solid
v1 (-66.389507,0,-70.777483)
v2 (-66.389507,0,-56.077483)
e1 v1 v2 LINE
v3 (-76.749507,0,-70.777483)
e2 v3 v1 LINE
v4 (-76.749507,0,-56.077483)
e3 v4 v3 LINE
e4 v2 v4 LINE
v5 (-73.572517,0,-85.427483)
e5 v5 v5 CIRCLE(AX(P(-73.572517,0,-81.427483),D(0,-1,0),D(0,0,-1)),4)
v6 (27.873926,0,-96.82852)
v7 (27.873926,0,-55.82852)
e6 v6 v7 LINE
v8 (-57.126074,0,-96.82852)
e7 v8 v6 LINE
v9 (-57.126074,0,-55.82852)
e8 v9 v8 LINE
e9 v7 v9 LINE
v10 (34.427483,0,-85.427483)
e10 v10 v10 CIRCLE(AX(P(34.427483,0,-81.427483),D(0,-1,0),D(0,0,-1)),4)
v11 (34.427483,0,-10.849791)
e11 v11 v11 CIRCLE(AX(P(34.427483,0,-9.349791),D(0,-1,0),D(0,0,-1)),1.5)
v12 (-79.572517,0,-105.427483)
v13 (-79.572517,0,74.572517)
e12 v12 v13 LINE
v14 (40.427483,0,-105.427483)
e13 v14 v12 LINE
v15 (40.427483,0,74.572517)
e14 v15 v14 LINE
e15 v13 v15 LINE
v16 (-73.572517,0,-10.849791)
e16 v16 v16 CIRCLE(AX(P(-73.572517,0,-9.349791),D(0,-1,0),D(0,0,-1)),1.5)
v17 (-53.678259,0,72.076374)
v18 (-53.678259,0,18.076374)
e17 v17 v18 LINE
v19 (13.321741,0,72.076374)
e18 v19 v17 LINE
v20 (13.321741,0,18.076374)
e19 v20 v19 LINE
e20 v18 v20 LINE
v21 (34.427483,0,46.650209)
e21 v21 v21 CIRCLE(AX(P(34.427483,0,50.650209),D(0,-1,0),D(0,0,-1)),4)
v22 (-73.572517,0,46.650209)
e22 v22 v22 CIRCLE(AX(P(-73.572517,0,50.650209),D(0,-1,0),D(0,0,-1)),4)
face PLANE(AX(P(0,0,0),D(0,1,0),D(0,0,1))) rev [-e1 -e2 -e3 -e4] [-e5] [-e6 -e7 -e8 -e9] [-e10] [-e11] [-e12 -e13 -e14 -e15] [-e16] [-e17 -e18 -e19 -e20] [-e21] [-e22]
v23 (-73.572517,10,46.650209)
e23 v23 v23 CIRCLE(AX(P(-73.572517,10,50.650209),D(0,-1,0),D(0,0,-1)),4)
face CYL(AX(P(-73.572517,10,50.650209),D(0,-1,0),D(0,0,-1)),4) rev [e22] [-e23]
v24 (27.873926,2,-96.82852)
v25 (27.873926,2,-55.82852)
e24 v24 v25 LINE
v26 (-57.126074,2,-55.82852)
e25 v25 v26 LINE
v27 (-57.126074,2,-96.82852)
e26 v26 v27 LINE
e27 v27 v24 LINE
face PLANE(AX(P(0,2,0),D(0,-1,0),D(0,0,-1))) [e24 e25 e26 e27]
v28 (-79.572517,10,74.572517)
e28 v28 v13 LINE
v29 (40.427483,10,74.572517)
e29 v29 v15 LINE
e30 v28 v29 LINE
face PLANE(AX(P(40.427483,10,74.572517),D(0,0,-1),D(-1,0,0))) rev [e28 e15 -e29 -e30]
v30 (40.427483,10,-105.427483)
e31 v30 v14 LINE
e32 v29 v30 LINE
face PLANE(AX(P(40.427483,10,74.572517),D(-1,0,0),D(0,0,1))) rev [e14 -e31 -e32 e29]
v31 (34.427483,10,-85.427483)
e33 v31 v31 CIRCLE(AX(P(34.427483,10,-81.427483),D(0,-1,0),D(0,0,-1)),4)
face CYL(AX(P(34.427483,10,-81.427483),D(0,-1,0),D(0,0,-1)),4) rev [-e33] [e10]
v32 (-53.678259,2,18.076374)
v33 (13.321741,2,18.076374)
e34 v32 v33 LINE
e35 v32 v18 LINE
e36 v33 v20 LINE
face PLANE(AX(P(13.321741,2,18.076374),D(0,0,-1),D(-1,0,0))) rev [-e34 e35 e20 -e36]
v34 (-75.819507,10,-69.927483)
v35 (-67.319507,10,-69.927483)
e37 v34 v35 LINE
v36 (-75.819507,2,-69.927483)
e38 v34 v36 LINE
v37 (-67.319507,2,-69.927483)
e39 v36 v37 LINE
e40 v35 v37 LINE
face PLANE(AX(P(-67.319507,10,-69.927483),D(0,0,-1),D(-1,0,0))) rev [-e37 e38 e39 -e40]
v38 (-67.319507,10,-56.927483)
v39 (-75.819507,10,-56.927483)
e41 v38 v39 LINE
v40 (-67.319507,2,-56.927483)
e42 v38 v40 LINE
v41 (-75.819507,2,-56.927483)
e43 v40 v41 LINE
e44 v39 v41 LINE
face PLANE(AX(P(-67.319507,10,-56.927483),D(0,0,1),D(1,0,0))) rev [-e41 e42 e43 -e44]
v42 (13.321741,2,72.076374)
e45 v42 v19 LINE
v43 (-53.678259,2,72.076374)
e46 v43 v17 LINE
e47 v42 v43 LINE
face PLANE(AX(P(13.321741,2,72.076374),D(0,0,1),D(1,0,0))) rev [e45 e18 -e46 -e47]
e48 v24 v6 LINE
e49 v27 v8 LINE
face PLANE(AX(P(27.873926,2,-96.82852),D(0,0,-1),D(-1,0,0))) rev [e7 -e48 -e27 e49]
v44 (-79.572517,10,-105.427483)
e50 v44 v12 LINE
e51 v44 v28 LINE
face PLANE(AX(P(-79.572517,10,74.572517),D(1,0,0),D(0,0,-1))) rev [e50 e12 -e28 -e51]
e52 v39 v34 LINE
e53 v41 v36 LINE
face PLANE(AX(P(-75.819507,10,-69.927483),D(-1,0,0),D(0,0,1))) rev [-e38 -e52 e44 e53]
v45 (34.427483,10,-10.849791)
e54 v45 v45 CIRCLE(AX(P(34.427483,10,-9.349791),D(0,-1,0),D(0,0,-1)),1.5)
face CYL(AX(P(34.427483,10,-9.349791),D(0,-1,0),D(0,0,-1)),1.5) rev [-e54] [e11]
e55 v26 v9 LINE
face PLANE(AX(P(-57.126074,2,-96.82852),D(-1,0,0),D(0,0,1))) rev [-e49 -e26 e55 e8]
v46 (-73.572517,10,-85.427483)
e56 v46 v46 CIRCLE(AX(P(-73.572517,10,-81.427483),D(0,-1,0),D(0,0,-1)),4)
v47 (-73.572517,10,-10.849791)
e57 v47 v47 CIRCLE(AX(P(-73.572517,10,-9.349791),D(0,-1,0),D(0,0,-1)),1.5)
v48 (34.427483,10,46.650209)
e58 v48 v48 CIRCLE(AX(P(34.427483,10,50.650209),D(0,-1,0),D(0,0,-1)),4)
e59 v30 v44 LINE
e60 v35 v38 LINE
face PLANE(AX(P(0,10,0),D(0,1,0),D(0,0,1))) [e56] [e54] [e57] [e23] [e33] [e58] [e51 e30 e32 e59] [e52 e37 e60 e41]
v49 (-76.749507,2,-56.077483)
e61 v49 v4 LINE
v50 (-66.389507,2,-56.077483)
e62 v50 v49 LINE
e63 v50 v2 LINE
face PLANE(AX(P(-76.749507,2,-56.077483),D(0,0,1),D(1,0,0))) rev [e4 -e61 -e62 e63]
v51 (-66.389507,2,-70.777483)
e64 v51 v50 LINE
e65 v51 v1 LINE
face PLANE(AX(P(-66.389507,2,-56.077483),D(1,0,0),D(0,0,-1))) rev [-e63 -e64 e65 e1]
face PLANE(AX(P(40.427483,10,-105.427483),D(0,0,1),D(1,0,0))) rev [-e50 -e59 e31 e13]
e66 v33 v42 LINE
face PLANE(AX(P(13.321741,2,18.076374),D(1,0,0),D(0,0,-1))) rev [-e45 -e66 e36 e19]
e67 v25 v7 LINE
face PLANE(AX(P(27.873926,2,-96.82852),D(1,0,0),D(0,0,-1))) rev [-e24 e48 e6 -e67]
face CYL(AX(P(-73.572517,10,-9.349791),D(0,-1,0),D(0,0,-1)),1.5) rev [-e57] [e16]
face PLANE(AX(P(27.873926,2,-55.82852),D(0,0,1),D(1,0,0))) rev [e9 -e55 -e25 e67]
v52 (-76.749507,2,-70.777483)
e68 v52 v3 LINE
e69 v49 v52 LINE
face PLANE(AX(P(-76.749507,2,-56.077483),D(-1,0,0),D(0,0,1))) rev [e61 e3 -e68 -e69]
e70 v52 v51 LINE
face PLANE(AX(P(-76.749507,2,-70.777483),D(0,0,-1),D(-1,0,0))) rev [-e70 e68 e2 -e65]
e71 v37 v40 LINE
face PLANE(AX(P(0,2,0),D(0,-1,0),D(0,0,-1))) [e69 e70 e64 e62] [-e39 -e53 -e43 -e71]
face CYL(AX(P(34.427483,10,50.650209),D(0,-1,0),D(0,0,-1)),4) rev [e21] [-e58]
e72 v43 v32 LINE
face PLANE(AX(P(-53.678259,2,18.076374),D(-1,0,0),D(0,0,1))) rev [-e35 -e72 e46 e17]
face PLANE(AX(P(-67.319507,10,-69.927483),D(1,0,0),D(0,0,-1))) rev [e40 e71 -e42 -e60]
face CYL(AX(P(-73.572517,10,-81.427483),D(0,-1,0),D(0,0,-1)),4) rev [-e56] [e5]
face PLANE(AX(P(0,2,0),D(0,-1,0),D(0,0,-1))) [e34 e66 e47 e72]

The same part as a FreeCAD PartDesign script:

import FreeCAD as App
import Part
import Sketcher
from FreeCAD import Vector
Q = App.Units.Quantity

doc = App.newDocument("Part")
body = doc.addObject("PartDesign::Body", "Body")

# Sketch on XZ plane
sketch1 = body.newObject("Sketcher::SketchObject", "Sketch")
sketch1.AttachmentSupport = (doc.getObject("XZ_Plane"), [""])
sketch1.MapMode = "FlatFace"
sketch1.addGeometry(Part.LineSegment(Vector(-80, -105, 0), Vector(-80, 75, 0)), False)
sketch1.addGeometry(Part.LineSegment(Vector(-80, 75, 0), Vector(40, 75, 0)), False)
sketch1.addGeometry(Part.LineSegment(Vector(40, 75, 0), Vector(40, -105, 0)), False)
sketch1.addGeometry(Part.LineSegment(Vector(40, -105, 0), Vector(-80, -105, 0)), False)
sketch1.addConstraint(Sketcher.Constraint("Coincident", 0, 2, 1, 1))
sketch1.addConstraint(Sketcher.Constraint("Coincident", 1, 2, 2, 1))
sketch1.addConstraint(Sketcher.Constraint("Coincident", 2, 2, 3, 1))
sketch1.addConstraint(Sketcher.Constraint("Coincident", 3, 2, 0, 1))
sketch1.addConstraint(Sketcher.Constraint("Vertical", 0))
sketch1.addConstraint(Sketcher.Constraint("Horizontal", 1))
sketch1.addConstraint(Sketcher.Constraint("Vertical", 2))
sketch1.addConstraint(Sketcher.Constraint("Horizontal", 3))
sketch1.addConstraint(Sketcher.Constraint("DistanceX", 1, 1, 1, 2, Q("120 mm")))
sketch1.addConstraint(Sketcher.Constraint("DistanceY", 0, 1, 0, 2, Q("180 mm")))
sketch1.addConstraint(Sketcher.Constraint("DistanceX", 0, 2, -1, 1, Q("79.572517 mm")))
sketch1.addConstraint(Sketcher.Constraint("DistanceY", -1, 1, 0, 2, Q("74.572517 mm")))
pad1 = body.newObject("PartDesign::Pad", "Pad")
pad1.Profile = sketch1
pad1.Length = 10
pad1.Reversed = True

# Sketch on XZ plane
sketch2 = body.newObject("Sketcher::SketchObject", "Sketch001")
sketch2.AttachmentSupport = (doc.getObject("XZ_Plane"), [""])
sketch2.MapMode = "FlatFace"
sketch2.addGeometry(Part.Circle(Vector(-73.6, 50.7, 0), Vector(0, 0, 1), 4), False)
sketch2.addGeometry(Part.Circle(Vector(34.4, 50.7, 0), Vector(0, 0, 1), 4), False)
sketch2.addGeometry(Part.Circle(Vector(34.4, -81.4, 0), Vector(0, 0, 1), 4), False)
sketch2.addGeometry(Part.Circle(Vector(-73.6, -81.4, 0), Vector(0, 0, 1), 4), False)
sketch2.addGeometry(Part.Circle(Vector(-73.6, -9.3, 0), Vector(0, 0, 1), 1.5), False)
sketch2.addGeometry(Part.Circle(Vector(34.4, -9.3, 0), Vector(0, 0, 1), 1.5), False)
sketch2.addConstraint(Sketcher.Constraint("Equal", 0, 1))
sketch2.addConstraint(Sketcher.Constraint("Equal", 1, 2))
sketch2.addConstraint(Sketcher.Constraint("Equal", 2, 3))
sketch2.addConstraint(Sketcher.Constraint("Equal", 4, 5))
sketch2.addConstraint(Sketcher.Constraint("Horizontal", 0, 3, 1, 3))
sketch2.addConstraint(Sketcher.Constraint("Horizontal", 2, 3, 3, 3))
sketch2.addConstraint(Sketcher.Constraint("Horizontal", 4, 3, 5, 3))
sketch2.addConstraint(Sketcher.Constraint("Vertical", 1, 3, 2, 3))
sketch2.addConstraint(Sketcher.Constraint("Vertical", 0, 3, 3, 3))
sketch2.addConstraint(Sketcher.Constraint("Vertical", 3, 3, 4, 3))
sketch2.addConstraint(Sketcher.Constraint("Vertical", 2, 3, 5, 3))
sketch2.addConstraint(Sketcher.Constraint("Diameter", 0, Q("8 mm")))
sketch2.addConstraint(Sketcher.Constraint("Diameter", 4, Q("3 mm")))
sketch2.addConstraint(Sketcher.Constraint("DistanceX", 0, 3, 1, 3, Q("108 mm")))
sketch2.addConstraint(Sketcher.Constraint("DistanceY", 4, 3, 0, 3, Q("60 mm")))
sketch2.addConstraint(Sketcher.Constraint("DistanceY", -1, 1, 0, 3, Q("50.650209 mm")))
sketch2.addConstraint(Sketcher.Constraint("DistanceX", 0, 3, -1, 1, Q("73.572517 mm")))
sketch2.addConstraint(Sketcher.Constraint("DistanceY", 2, 3, -1, 1, Q("81.427483 mm")))
pocket1 = body.newObject("PartDesign::Pocket", "Pocket")
pocket1.Profile = sketch2
pocket1.Length = 10

# Sketch on XZ plane
sketch3 = body.newObject("Sketcher::SketchObject", "Sketch002")
sketch3.AttachmentSupport = (doc.getObject("XZ_Plane"), [""])
sketch3.MapMode = "FlatFace"
sketch3.addGeometry(Part.LineSegment(Vector(-54, 72, 0), Vector(-54, 18, 0)), False)
sketch3.addGeometry(Part.LineSegment(Vector(-54, 18, 0), Vector(13, 18, 0)), False)
sketch3.addGeometry(Part.LineSegment(Vector(13, 18, 0), Vector(13, 72, 0)), False)
sketch3.addGeometry(Part.LineSegment(Vector(13, 72, 0), Vector(-54, 72, 0)), False)
sketch3.addGeometry(Part.LineSegment(Vector(-57, -56, 0), Vector(-57, -97, 0)), False)
sketch3.addGeometry(Part.LineSegment(Vector(-57, -97, 0), Vector(28, -97, 0)), False)
sketch3.addGeometry(Part.LineSegment(Vector(28, -97, 0), Vector(28, -56, 0)), False)
sketch3.addGeometry(Part.LineSegment(Vector(28, -56, 0), Vector(-57, -56, 0)), False)
sketch3.addGeometry(Part.LineSegment(Vector(-77, -56, 0), Vector(-77, -71, 0)), False)
sketch3.addGeometry(Part.LineSegment(Vector(-77, -71, 0), Vector(-66, -71, 0)), False)
sketch3.addGeometry(Part.LineSegment(Vector(-66, -71, 0), Vector(-66, -56, 0)), False)
sketch3.addGeometry(Part.LineSegment(Vector(-66, -56, 0), Vector(-77, -56, 0)), False)
sketch3.addConstraint(Sketcher.Constraint("Coincident", 0, 2, 1, 1))
sketch3.addConstraint(Sketcher.Constraint("Coincident", 1, 2, 2, 1))
sketch3.addConstraint(Sketcher.Constraint("Coincident", 2, 2, 3, 1))
sketch3.addConstraint(Sketcher.Constraint("Coincident", 3, 2, 0, 1))
sketch3.addConstraint(Sketcher.Constraint("Coincident", 4, 2, 5, 1))
sketch3.addConstraint(Sketcher.Constraint("Coincident", 5, 2, 6, 1))
sketch3.addConstraint(Sketcher.Constraint("Coincident", 6, 2, 7, 1))
sketch3.addConstraint(Sketcher.Constraint("Coincident", 7, 2, 4, 1))
sketch3.addConstraint(Sketcher.Constraint("Coincident", 8, 2, 9, 1))
sketch3.addConstraint(Sketcher.Constraint("Coincident", 9, 2, 10, 1))
sketch3.addConstraint(Sketcher.Constraint("Coincident", 10, 2, 11, 1))
sketch3.addConstraint(Sketcher.Constraint("Coincident", 11, 2, 8, 1))
sketch3.addConstraint(Sketcher.Constraint("Vertical", 0))
sketch3.addConstraint(Sketcher.Constraint("Horizontal", 1))
sketch3.addConstraint(Sketcher.Constraint("Vertical", 2))
sketch3.addConstraint(Sketcher.Constraint("Horizontal", 3))
sketch3.addConstraint(Sketcher.Constraint("Vertical", 4))
sketch3.addConstraint(Sketcher.Constraint("Horizontal", 5))
sketch3.addConstraint(Sketcher.Constraint("Vertical", 6))
sketch3.addConstraint(Sketcher.Constraint("Horizontal", 7))
sketch3.addConstraint(Sketcher.Constraint("Vertical", 8))
sketch3.addConstraint(Sketcher.Constraint("Horizontal", 9))
sketch3.addConstraint(Sketcher.Constraint("Vertical", 10))
sketch3.addConstraint(Sketcher.Constraint("Horizontal", 11))
sketch3.addConstraint(Sketcher.Constraint("DistanceX", 1, 1, 1, 2, Q("67 mm")))
sketch3.addConstraint(Sketcher.Constraint("DistanceX", 5, 1, 5, 2, Q("85 mm")))
sketch3.addConstraint(Sketcher.Constraint("DistanceY", 0, 2, 0, 1, Q("54 mm")))
sketch3.addConstraint(Sketcher.Constraint("DistanceY", 4, 2, 4, 1, Q("41 mm")))
sketch3.addConstraint(Sketcher.Constraint("DistanceY", 8, 2, 8, 1, Q("14.7 mm")))
sketch3.addConstraint(Sketcher.Constraint("DistanceX", 9, 1, 9, 2, Q("10.36 mm")))
sketch3.addConstraint(Sketcher.Constraint("DistanceX", 0, 2, -1, 1, Q("53.678259 mm")))
sketch3.addConstraint(Sketcher.Constraint("DistanceY", 4, 2, -1, 1, Q("96.82852 mm")))
sketch3.addConstraint(Sketcher.Constraint("DistanceX", 8, 2, 0, 2, Q("23.071249 mm")))
sketch3.addConstraint(Sketcher.Constraint("DistanceY", -1, 1, 0, 2, Q("18.076374 mm")))
sketch3.addConstraint(Sketcher.Constraint("DistanceX", 4, 2, -1, 1, Q("57.126074 mm")))
sketch3.addConstraint(Sketcher.Constraint("DistanceY", 8, 2, -1, 1, Q("70.777483 mm")))
pocket2 = body.newObject("PartDesign::Pocket", "Pocket001")
pocket2.Profile = sketch3
pocket2.Length = 2

# Sketch on XZ plane
sketch4 = body.newObject("Sketcher::SketchObject", "Sketch003")
sketch4.AttachmentSupport = (doc.getObject("XZ_Plane"), [""])
sketch4.MapMode = "FlatFace"
sketch4.addGeometry(Part.LineSegment(Vector(-76, -57, 0), Vector(-76, -70, 0)), False)
sketch4.addGeometry(Part.LineSegment(Vector(-76, -70, 0), Vector(-67, -70, 0)), False)
sketch4.addGeometry(Part.LineSegment(Vector(-67, -70, 0), Vector(-67, -57, 0)), False)
sketch4.addGeometry(Part.LineSegment(Vector(-67, -57, 0), Vector(-76, -57, 0)), False)
sketch4.addConstraint(Sketcher.Constraint("Coincident", 0, 2, 1, 1))
sketch4.addConstraint(Sketcher.Constraint("Coincident", 1, 2, 2, 1))
sketch4.addConstraint(Sketcher.Constraint("Coincident", 2, 2, 3, 1))
sketch4.addConstraint(Sketcher.Constraint("Coincident", 3, 2, 0, 1))
sketch4.addConstraint(Sketcher.Constraint("Vertical", 0))
sketch4.addConstraint(Sketcher.Constraint("Horizontal", 1))
sketch4.addConstraint(Sketcher.Constraint("Vertical", 2))
sketch4.addConstraint(Sketcher.Constraint("Horizontal", 3))
sketch4.addConstraint(Sketcher.Constraint("DistanceY", 0, 2, 0, 1, Q("13 mm")))
sketch4.addConstraint(Sketcher.Constraint("DistanceX", 1, 1, 1, 2, Q("8.5 mm")))
sketch4.addConstraint(Sketcher.Constraint("DistanceX", 0, 2, -1, 1, Q("75.819507 mm")))
sketch4.addConstraint(Sketcher.Constraint("DistanceY", 0, 2, -1, 1, Q("69.927483 mm")))
pocket3 = body.newObject("PartDesign::Pocket", "Pocket002")
pocket3.Profile = sketch4
pocket3.Length = 10

doc.recompute()
